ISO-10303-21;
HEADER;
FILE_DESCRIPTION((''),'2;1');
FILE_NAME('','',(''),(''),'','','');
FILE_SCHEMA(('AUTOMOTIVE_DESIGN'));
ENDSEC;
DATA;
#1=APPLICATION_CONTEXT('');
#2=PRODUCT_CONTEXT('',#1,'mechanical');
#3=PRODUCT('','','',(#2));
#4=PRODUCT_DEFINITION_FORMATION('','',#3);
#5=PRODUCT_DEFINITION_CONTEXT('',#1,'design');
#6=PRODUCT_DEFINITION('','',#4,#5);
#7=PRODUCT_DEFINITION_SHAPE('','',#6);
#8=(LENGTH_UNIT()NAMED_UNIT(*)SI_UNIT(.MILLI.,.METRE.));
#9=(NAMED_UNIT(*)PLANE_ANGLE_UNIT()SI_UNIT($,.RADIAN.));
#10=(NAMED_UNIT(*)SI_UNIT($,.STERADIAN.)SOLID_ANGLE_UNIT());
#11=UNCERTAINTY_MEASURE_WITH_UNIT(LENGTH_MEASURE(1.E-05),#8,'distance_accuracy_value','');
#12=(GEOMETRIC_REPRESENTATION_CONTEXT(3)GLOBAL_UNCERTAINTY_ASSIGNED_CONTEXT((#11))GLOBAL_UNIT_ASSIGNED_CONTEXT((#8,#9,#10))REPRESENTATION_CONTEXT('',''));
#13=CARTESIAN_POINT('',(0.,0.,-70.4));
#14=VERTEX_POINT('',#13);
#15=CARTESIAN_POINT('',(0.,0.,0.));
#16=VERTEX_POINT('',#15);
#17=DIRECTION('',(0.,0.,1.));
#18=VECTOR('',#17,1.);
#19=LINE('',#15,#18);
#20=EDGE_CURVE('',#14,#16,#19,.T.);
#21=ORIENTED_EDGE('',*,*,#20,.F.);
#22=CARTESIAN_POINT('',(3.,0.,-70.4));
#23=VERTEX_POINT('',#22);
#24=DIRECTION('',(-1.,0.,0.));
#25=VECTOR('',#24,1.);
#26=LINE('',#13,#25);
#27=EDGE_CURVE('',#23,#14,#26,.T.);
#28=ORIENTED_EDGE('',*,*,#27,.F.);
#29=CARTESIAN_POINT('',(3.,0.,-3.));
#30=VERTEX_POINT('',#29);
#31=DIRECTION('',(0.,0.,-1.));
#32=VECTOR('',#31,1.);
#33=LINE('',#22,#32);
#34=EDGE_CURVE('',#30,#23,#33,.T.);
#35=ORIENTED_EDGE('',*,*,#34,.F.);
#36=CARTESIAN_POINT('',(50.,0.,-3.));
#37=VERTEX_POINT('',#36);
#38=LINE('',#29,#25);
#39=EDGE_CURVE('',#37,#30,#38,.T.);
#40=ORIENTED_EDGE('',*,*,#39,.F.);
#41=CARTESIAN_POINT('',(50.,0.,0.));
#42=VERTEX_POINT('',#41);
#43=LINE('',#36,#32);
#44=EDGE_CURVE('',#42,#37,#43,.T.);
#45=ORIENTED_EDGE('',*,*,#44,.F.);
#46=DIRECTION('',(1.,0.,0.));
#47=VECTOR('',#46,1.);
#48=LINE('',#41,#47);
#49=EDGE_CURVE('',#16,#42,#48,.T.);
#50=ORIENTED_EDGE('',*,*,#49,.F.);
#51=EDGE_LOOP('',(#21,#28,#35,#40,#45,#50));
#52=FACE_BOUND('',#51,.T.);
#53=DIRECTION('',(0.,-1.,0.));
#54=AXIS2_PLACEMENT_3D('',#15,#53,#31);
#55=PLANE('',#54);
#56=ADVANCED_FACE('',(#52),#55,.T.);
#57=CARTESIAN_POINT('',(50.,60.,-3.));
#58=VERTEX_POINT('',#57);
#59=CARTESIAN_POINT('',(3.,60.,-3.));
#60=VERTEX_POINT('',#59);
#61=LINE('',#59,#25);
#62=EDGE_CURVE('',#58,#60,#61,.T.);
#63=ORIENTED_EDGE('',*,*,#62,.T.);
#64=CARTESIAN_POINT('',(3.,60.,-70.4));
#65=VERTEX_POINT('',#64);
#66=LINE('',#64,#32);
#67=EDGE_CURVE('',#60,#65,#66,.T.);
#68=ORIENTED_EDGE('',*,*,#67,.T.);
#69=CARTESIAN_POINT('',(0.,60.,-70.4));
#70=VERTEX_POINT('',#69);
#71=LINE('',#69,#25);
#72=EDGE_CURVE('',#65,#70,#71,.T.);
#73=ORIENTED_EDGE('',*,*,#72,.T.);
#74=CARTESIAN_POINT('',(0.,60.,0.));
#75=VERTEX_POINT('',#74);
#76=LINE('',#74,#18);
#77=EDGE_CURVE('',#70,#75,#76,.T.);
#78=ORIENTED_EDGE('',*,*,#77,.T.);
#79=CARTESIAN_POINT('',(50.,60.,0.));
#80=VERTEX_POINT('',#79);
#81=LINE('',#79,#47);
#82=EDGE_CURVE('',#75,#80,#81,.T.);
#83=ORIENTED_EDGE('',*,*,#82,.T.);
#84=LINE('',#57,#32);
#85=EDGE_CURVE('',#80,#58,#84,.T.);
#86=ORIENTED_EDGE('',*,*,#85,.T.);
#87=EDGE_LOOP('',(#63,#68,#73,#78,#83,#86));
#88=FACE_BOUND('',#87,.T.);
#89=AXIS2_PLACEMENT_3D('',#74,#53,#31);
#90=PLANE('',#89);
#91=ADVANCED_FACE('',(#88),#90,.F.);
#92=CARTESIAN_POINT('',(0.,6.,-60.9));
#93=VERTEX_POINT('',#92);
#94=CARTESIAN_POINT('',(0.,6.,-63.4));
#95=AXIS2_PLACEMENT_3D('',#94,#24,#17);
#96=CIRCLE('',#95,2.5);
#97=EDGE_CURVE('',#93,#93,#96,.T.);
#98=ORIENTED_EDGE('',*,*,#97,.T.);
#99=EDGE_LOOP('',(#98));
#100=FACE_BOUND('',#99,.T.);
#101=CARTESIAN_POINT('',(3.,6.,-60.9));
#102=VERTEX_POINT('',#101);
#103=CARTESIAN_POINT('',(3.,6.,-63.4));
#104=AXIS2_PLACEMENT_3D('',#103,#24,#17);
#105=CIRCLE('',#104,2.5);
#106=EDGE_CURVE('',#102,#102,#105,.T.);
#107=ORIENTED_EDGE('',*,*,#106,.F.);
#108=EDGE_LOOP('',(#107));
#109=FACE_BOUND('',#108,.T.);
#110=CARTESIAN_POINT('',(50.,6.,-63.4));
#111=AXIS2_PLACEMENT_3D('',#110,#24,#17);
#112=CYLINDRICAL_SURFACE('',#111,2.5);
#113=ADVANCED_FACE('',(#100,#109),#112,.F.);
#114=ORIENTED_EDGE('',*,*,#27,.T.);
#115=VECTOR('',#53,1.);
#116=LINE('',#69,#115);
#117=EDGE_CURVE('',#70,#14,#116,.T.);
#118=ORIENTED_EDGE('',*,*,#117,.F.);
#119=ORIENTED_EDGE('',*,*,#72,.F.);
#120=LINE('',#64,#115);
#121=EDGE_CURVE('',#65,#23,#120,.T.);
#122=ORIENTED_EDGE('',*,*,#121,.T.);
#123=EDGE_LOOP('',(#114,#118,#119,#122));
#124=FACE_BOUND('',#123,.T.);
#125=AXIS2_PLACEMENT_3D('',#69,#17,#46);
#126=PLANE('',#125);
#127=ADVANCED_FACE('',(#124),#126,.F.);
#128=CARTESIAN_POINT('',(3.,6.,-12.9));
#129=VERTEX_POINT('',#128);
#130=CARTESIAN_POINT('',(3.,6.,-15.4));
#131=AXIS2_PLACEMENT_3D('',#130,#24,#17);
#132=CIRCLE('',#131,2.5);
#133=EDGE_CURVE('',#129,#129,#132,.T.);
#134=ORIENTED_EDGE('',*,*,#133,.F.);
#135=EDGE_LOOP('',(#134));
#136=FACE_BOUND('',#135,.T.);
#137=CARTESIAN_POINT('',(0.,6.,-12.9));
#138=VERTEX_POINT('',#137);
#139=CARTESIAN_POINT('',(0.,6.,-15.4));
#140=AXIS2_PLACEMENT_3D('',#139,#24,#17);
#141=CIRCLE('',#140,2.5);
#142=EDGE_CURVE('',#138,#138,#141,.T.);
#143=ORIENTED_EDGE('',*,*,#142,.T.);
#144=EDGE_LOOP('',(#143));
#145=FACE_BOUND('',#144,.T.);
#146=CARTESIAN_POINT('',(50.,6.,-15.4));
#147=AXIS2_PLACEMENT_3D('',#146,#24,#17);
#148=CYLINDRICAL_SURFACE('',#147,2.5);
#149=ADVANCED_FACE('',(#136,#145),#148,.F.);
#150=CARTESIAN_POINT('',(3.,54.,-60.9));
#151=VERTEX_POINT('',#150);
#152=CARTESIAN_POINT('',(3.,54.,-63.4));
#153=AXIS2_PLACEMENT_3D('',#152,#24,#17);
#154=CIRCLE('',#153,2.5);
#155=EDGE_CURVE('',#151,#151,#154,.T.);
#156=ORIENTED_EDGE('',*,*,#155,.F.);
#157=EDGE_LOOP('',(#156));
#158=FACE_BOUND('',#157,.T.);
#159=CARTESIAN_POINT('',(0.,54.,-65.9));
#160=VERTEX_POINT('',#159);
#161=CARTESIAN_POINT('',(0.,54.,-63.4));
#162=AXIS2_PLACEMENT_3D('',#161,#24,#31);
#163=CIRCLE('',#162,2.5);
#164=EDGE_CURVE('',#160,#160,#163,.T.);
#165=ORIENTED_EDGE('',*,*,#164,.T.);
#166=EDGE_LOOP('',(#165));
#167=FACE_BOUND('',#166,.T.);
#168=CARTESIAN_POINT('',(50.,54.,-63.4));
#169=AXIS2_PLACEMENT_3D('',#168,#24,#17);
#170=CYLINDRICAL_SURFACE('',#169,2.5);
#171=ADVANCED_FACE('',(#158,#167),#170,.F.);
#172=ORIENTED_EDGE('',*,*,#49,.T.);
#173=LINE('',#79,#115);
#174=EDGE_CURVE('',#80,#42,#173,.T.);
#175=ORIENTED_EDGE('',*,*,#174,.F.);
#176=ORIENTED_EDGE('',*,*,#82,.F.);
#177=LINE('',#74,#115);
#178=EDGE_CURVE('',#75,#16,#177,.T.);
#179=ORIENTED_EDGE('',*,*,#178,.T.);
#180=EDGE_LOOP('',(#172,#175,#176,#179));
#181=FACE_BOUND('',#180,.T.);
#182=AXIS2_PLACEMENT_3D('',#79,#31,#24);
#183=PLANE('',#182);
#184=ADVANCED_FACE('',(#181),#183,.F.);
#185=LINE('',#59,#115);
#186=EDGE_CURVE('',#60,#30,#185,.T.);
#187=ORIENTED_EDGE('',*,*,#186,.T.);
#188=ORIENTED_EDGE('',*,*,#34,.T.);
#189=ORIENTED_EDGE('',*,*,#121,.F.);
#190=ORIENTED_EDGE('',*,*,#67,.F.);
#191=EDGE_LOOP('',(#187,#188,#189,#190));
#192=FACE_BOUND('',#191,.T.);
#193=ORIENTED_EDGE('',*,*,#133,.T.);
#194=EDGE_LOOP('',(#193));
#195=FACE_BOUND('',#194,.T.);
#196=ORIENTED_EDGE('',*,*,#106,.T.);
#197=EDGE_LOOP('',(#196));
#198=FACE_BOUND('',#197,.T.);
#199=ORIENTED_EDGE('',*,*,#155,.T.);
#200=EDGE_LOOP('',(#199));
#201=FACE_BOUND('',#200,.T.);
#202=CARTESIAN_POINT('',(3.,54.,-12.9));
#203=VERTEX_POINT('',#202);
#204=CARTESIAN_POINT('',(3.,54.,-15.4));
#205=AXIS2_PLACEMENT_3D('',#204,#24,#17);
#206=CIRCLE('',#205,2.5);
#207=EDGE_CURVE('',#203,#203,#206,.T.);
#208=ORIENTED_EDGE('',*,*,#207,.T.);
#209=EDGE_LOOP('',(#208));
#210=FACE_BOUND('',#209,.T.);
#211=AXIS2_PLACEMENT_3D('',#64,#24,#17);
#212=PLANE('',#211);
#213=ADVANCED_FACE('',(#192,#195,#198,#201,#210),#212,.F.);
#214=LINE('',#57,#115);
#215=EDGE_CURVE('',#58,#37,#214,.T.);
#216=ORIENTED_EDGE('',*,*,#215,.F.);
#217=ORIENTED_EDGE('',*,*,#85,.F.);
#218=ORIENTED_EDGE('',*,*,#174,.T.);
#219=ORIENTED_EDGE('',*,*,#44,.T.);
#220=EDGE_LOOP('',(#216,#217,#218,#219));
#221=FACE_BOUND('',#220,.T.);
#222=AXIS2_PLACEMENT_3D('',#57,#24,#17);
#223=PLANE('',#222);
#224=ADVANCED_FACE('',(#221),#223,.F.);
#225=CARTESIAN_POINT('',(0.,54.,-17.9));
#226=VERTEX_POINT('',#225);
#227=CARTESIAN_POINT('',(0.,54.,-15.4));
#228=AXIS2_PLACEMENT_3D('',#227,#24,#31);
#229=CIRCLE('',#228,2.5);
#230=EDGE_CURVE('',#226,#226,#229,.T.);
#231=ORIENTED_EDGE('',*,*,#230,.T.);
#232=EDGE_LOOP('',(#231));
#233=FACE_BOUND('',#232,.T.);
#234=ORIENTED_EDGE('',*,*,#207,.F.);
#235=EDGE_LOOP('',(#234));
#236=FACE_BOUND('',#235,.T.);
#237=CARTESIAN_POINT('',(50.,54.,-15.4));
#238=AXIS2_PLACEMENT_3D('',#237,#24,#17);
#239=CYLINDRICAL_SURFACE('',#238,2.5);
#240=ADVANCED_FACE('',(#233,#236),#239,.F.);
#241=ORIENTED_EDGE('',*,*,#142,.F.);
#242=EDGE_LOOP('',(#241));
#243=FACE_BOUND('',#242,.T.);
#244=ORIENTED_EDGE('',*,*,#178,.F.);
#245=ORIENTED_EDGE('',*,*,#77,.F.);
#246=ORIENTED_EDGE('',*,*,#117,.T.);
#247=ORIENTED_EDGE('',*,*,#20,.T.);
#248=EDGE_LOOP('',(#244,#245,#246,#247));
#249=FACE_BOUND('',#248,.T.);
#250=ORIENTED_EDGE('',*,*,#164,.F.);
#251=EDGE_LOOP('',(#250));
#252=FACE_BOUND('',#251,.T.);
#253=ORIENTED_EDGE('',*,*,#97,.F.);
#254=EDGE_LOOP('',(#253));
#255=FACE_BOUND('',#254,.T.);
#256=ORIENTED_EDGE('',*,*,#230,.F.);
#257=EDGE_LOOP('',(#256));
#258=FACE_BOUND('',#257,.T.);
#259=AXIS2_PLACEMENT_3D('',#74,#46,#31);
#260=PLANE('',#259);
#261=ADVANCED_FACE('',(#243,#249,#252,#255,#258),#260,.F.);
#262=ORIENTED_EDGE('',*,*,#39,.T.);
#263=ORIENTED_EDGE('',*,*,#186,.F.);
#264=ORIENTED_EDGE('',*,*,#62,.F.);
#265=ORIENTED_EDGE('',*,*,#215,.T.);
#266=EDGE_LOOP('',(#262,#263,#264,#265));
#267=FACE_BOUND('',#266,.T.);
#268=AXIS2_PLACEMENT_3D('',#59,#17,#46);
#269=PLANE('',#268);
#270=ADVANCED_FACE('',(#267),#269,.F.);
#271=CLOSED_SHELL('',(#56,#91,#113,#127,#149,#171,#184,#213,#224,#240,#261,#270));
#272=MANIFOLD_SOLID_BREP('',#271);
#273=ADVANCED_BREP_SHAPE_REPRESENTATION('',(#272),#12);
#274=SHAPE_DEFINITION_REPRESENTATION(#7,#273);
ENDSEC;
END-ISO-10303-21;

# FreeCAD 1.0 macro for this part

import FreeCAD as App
import Part
import Sketcher
Q = App.Units.Quantity


def add_polygon(sketch, points):
    """Adds a closed chain of lines whose ends are joined by coincident constraints."""
    first, n = sketch.GeometryCount, len(points)
    for a, b in zip(points, points[1:] + points[:1]):
        sketch.addGeometry(Part.LineSegment(App.Vector(*a, 0), App.Vector(*b, 0)), False)
    for i in range(n):
        sketch.addConstraint(Sketcher.Constraint("Coincident", first + i, 2, first + (i + 1) % n, 1))

doc = App.newDocument("Part")
params = doc.addObject("Spreadsheet::Sheet", "Params")
for row, (alias, value) in enumerate([
    ("sketch1_width", "50 mm"),
    ("sketch1_width2", "47 mm"),
    ("sketch1_height", "70.4 mm"),
    ("pad1_length", "60 mm"),
    ("sketch2_diameter", "5 mm"),
], start=1):
    params.set(f"A{row}", alias)
    params.set(f"B{row}", "=" + value)
    params.setAlias(f"B{row}", alias)

body = doc.addObject("PartDesign::Body", "Body")

sketch1 = body.newObject("Sketcher::SketchObject", "Sketch")
sketch1.AttachmentSupport = (doc.getObject("XZ_Plane"), [""])
sketch1.MapMode = "FlatFace"
add_polygon(sketch1, [(0, -70.4), (0, 0), (50, 0), (50, -3), (3, -3), (3, -70.4)])
sketch1.addConstraint([
    Sketcher.Constraint("Vertical", 0),
    Sketcher.Constraint("Horizontal", 1),
    Sketcher.Constraint("Vertical", 2),
    Sketcher.Constraint("Horizontal", 3),
    Sketcher.Constraint("Vertical", 4),
    Sketcher.Constraint("Horizontal", 5),
    Sketcher.Constraint("Coincident", 0, 2, -1, 1),
    Sketcher.Constraint("Equal", 5, 2),
    Sketcher.Constraint("DistanceX", 1, 1, 1, 2, Q("50 mm")),
    Sketcher.Constraint("DistanceX", 3, 2, 3, 1, Q("47 mm")),
    Sketcher.Constraint("DistanceY", 0, 1, 0, 2, Q("70.4 mm")),
])
sketch1.setExpression("Constraints[14]", "Params.sketch1_width")
sketch1.setExpression("Constraints[15]", "Params.sketch1_width2")
sketch1.setExpression("Constraints[16]", "Params.sketch1_height")
pad1 = body.newObject("PartDesign::Pad", "Pad")
pad1.Profile = sketch1
pad1.setExpression("Length", "Params.pad1_length")
pad1.Reversed = True

sketch2 = body.newObject("Sketcher::SketchObject", "Sketch001")
sketch2.AttachmentSupport = (doc.getObject("YZ_Plane"), [""])
sketch2.MapMode = "FlatFace"
sketch2.addGeometry([
    Part.Circle(App.Vector(6, -63.4, 0), App.Vector(0, 0, 1), 2.5),
    Part.Circle(App.Vector(6, -15.4, 0), App.Vector(0, 0, 1), 2.5),
    Part.Circle(App.Vector(54, -15.4, 0), App.Vector(0, 0, 1), 2.5),
    Part.Circle(App.Vector(54, -63.4, 0), App.Vector(0, 0, 1), 2.5),
], False)
sketch2.addConstraint([
    Sketcher.Constraint("Equal", 0, 1),
    Sketcher.Constraint("Equal", 1, 2),
    Sketcher.Constraint("Equal", 2, 3),
    Sketcher.Constraint("Horizontal", 1, 3, 2, 3),
    Sketcher.Constraint("Horizontal", 0, 3, 3, 3),
    Sketcher.Constraint("Vertical", 0, 3, 1, 3),
    Sketcher.Constraint("Vertical", 2, 3, 3, 3),
    Sketcher.Constraint("Diameter", 0, Q("5 mm")),
    Sketcher.Constraint("DistanceX", -1, 1, 0, 3, Q("6 mm")),
    Sketcher.Constraint("DistanceX", -1, 1, 2, 3, Q("54 mm")),
    Sketcher.Constraint("DistanceY", 0, 3, 1, 3, Q("48 mm")),
    Sketcher.Constraint("DistanceY", 0, 3, -1, 1, Q("63.4 mm")),
])
sketch2.setExpression("Constraints[7]", "Params.sketch2_diameter")
pocket1 = body.newObject("PartDesign::Pocket", "Pocket")
pocket1.Profile = sketch2
pocket1.Type = "ThroughAll"
pocket1.Reversed = True

doc.recompute()
